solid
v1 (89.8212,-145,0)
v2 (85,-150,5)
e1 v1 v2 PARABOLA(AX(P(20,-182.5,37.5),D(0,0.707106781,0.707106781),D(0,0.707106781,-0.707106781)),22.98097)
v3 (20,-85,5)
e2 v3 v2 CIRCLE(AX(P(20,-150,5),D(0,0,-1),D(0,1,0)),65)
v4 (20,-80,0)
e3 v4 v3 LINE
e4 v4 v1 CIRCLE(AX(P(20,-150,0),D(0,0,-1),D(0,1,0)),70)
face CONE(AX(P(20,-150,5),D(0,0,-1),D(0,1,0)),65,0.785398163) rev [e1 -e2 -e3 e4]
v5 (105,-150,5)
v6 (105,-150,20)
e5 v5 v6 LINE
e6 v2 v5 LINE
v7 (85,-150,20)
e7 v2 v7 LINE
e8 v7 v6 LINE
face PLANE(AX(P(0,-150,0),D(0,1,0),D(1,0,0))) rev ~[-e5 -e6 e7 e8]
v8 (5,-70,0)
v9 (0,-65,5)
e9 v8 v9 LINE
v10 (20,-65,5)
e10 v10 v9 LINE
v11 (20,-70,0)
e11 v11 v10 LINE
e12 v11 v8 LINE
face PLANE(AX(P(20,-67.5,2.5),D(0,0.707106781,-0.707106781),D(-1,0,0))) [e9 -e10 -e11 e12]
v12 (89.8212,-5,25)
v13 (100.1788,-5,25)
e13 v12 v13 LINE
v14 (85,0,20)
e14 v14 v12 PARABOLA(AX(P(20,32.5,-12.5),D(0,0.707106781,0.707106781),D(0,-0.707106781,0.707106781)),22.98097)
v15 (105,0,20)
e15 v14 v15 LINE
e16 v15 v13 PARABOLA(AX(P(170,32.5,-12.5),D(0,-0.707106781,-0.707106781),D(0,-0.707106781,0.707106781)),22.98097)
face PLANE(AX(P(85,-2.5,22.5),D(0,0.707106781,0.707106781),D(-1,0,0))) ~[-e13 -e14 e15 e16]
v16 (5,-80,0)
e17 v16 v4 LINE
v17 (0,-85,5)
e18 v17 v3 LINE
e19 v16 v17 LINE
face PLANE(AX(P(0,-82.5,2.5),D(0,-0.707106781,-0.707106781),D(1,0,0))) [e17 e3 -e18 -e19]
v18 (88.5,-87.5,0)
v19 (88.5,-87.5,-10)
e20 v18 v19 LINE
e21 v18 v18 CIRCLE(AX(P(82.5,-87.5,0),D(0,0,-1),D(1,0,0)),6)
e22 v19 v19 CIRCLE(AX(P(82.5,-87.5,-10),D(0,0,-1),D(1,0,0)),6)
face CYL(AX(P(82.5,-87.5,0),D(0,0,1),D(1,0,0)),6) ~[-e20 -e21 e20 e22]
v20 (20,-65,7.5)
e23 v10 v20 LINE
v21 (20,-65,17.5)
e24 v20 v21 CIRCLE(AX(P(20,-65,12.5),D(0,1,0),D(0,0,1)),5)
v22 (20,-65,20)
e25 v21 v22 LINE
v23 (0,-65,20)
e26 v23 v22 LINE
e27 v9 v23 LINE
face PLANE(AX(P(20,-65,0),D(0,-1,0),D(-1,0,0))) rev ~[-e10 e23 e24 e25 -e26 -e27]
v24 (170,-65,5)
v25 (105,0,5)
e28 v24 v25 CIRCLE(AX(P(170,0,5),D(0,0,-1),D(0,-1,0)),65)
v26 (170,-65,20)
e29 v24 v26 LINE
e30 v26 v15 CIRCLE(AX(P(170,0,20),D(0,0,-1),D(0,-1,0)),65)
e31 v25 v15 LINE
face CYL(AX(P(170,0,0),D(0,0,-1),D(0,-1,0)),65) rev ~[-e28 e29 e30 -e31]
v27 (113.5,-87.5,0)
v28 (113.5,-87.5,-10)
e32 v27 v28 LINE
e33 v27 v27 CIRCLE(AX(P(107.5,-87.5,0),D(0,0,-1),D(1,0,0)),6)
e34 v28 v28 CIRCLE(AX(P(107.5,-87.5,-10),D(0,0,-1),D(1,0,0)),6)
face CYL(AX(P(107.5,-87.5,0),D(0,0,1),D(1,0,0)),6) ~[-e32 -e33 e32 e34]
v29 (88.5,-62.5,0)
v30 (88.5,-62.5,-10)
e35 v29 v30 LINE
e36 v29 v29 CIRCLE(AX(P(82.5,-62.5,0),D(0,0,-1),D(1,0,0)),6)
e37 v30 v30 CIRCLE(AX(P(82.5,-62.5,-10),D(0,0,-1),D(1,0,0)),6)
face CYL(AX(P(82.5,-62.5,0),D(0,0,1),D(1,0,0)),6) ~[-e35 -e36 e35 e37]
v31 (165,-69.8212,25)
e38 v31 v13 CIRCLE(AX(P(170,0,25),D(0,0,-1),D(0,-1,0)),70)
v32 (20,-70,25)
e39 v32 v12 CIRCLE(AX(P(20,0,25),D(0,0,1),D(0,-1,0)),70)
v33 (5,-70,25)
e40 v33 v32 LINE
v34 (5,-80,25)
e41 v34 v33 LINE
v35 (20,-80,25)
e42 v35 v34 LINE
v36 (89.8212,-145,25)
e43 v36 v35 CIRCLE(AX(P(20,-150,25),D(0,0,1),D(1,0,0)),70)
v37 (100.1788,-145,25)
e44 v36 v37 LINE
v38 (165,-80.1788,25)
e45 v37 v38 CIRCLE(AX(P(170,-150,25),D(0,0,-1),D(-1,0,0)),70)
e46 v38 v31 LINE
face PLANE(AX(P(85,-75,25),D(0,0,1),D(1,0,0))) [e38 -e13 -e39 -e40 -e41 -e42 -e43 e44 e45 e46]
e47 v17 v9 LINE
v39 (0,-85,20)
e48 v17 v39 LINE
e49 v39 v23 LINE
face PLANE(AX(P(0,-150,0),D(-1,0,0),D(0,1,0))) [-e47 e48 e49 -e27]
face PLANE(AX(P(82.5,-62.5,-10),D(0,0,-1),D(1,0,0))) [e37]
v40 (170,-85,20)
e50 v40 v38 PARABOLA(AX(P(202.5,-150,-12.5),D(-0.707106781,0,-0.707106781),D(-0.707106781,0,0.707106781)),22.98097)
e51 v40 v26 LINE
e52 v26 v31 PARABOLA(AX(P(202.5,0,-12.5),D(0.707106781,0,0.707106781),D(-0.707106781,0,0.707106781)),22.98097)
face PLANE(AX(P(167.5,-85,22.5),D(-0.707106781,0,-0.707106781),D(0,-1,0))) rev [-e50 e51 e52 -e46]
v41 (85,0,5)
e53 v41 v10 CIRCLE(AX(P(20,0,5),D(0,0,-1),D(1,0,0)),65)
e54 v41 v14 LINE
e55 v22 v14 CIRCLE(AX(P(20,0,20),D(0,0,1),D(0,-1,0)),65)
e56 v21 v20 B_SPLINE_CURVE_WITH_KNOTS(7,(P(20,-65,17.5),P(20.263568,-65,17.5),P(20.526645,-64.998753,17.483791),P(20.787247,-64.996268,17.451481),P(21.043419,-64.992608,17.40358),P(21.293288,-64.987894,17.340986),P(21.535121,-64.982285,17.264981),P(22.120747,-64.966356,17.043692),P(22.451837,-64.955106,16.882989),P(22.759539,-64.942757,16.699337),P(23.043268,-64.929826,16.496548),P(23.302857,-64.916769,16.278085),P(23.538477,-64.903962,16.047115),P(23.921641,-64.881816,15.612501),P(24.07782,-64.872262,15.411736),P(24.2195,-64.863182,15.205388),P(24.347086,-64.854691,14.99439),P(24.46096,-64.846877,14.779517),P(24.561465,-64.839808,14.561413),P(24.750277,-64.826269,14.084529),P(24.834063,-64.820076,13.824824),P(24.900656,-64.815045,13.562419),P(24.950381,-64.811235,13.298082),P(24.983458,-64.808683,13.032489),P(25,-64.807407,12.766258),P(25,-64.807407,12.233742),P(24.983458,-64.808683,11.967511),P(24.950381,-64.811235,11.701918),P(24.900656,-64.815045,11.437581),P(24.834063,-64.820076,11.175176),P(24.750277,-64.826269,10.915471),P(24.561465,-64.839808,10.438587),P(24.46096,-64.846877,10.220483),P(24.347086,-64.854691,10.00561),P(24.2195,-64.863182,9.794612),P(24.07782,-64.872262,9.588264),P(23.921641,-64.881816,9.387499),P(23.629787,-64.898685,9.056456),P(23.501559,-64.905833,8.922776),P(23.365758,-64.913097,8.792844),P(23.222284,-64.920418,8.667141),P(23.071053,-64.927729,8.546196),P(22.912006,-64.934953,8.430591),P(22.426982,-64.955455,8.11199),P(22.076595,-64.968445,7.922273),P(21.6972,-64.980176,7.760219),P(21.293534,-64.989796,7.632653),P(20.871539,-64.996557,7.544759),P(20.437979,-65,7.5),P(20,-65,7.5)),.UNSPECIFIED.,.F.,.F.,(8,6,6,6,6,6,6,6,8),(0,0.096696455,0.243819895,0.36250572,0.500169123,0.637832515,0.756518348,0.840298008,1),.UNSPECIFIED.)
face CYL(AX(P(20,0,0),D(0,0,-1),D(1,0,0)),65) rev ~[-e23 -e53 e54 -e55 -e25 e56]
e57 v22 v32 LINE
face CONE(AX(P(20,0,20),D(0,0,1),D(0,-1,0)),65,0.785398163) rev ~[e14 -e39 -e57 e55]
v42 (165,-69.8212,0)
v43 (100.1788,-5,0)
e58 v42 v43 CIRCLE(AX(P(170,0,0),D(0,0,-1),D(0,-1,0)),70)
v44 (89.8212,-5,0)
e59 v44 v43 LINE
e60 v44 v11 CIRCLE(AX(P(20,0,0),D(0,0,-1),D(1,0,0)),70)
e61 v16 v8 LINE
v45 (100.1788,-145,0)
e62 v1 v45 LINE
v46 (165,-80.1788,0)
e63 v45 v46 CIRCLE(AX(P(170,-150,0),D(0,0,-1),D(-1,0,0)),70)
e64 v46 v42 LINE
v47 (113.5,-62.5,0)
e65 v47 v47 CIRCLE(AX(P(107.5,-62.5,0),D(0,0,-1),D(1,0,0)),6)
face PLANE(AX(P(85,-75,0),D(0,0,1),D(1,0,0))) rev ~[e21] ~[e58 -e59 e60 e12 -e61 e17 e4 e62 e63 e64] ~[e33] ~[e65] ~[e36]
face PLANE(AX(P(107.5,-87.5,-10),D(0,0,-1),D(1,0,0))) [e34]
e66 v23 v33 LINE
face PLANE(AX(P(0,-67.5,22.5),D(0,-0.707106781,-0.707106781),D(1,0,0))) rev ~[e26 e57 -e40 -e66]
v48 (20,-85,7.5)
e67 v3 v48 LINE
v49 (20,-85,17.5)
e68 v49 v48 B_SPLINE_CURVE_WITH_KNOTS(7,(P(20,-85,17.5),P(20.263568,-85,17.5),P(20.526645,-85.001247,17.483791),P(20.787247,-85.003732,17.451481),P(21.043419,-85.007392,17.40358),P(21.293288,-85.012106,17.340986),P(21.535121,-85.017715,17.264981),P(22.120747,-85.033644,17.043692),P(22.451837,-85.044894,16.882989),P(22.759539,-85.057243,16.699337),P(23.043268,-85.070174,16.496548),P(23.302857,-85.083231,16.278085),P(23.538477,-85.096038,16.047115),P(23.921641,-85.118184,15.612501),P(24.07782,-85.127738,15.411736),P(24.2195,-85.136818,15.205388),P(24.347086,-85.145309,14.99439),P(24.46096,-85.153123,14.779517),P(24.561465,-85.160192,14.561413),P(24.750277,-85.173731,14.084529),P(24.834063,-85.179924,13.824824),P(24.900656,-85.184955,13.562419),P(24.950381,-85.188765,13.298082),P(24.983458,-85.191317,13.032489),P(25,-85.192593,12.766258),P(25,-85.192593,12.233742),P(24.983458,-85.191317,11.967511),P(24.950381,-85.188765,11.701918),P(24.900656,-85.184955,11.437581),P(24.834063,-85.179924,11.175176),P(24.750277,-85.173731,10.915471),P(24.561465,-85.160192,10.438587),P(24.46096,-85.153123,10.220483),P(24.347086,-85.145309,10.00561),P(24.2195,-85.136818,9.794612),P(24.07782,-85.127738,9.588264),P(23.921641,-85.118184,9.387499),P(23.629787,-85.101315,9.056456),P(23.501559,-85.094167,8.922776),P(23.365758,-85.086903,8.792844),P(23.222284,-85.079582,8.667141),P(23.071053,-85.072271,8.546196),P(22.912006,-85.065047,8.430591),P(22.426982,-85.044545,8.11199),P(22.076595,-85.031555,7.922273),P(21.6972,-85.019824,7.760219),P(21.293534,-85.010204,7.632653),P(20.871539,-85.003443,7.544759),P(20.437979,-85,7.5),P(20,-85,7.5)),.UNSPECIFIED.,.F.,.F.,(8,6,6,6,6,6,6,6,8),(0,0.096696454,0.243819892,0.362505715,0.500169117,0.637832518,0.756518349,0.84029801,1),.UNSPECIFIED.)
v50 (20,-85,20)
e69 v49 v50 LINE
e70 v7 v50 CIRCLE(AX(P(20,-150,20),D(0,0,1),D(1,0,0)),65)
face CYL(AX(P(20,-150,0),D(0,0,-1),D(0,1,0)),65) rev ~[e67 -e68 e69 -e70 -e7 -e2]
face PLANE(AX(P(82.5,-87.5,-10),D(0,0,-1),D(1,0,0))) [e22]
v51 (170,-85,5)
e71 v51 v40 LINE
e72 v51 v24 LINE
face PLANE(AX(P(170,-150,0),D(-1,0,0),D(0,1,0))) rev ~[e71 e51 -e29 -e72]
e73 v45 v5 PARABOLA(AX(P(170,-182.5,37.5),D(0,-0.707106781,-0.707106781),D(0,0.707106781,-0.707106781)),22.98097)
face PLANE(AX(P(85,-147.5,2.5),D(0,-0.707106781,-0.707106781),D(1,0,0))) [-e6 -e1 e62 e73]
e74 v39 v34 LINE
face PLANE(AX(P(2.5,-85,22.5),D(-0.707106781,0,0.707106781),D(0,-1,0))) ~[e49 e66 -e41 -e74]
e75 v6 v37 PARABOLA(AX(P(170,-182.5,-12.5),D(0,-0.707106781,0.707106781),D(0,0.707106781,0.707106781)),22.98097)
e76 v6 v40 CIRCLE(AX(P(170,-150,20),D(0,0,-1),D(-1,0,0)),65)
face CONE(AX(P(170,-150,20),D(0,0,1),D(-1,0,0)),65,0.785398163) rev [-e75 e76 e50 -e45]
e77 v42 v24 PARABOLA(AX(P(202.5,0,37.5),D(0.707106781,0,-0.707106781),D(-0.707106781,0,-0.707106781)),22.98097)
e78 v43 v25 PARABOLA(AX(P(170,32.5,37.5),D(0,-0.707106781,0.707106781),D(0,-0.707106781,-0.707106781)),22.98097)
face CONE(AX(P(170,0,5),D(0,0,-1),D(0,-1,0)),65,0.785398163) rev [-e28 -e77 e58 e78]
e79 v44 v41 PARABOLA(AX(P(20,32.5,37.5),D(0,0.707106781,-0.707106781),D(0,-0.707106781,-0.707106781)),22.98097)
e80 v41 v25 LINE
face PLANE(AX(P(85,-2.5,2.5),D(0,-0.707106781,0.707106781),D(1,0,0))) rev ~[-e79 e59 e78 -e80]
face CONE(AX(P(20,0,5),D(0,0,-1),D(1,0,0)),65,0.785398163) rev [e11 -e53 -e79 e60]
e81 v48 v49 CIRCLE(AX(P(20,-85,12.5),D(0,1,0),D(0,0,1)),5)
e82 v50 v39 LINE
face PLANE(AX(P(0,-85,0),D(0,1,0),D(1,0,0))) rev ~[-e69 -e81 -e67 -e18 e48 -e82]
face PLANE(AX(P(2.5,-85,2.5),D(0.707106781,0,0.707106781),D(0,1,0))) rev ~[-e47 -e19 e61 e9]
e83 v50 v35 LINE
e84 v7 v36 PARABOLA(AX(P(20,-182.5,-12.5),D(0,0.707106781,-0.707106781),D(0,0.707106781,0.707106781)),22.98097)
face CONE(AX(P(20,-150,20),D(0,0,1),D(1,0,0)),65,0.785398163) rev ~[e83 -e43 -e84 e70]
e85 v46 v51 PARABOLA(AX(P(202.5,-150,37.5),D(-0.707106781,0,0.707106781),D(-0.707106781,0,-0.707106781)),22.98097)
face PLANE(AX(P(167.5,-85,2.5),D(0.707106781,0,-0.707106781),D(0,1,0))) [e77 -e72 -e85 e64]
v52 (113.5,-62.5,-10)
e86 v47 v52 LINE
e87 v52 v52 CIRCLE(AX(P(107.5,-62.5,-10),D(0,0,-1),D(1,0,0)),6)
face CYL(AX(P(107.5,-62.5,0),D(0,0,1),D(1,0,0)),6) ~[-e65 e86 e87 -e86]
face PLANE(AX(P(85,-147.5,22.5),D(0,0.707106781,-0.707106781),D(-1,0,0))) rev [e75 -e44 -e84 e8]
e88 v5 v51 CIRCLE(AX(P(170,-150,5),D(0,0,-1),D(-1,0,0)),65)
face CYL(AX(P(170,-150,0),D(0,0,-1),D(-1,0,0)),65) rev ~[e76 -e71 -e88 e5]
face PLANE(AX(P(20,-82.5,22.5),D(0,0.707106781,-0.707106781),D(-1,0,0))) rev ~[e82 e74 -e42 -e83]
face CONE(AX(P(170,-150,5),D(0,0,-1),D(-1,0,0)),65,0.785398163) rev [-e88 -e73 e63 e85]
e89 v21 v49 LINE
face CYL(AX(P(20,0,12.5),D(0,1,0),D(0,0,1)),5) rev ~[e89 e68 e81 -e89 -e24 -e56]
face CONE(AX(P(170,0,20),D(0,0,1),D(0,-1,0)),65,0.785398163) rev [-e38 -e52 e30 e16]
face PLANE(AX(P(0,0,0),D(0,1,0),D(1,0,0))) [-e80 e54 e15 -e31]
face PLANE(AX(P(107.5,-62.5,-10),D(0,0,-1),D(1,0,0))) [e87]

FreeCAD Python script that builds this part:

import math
import FreeCAD as App
import Part
import Sketcher


def edges_at(feature, points):
    """Names of the edges that pass closest to the given points."""
    edges = feature.Shape.Edges
    near = lambda p: min(range(len(edges)), key=lambda i: edges[i].distToShape(Part.Vertex(*p))[0])
    return sorted({f"Edge{near(p) + 1}" for p in points})


def add_polygon(sketch, points):
    """Adds a closed chain of lines whose ends are joined by coincident constraints."""
    first, n = sketch.GeometryCount, len(points)
    for a, b in zip(points, points[1:] + points[:1]):
        sketch.addGeometry(Part.LineSegment(App.Vector(*a, 0), App.Vector(*b, 0)), False)
    for i in range(n):
        sketch.addConstraint(Sketcher.Constraint("Coincident", first + i, 2, first + (i + 1) % n, 1))

doc = App.newDocument("Part")
body = doc.addObject("PartDesign::Body", "Body")

# Sketch on XY plane
sketch1 = body.newObject("Sketcher::SketchObject", "Sketch")
sketch1.AttachmentSupport = (doc.getObject("XY_Plane"), [""])
sketch1.MapMode = "FlatFace"
add_polygon(sketch1, [(0, 0), (0, -150), (170, -150), (170, 0)])  # lines 0-3
sketch1.addConstraint(Sketcher.Constraint("Vertical", 0))
sketch1.addConstraint(Sketcher.Constraint("Horizontal", 1))
sketch1.addConstraint(Sketcher.Constraint("Vertical", 2))
sketch1.addConstraint(Sketcher.Constraint("Horizontal", 3))
sketch1.addConstraint(Sketcher.Constraint("Coincident", 3, 2, -1, 1))
sketch1.addConstraint(Sketcher.Constraint("DistanceX", 1, 1, 1, 2, 170.0))
sketch1.addConstraint(Sketcher.Constraint("DistanceY", 0, 2, 0, 1, 150.0))
pad1 = body.newObject("PartDesign::Pad", "Pad")
pad1.Profile = sketch1
pad1.Length = 25

# Sketch on XY plane
sketch2 = body.newObject("Sketcher::SketchObject", "Sketch001")
sketch2.AttachmentSupport = (doc.getObject("XY_Plane"), [""])
sketch2.MapMode = "FlatFace"
sketch2.addGeometry(Part.ArcOfCircle(Part.Circle(App.Vector(170, 0, 0), App.Vector(0, 0, 1), 65), math.radians(-90), math.radians(180)), False)
sketch2.addGeometry(Part.ArcOfCircle(Part.Circle(App.Vector(170, 0, 0), App.Vector(0, 0, 1), 65), math.radians(180), math.radians(270)), False)
sketch2.addGeometry(Part.ArcOfCircle(Part.Circle(App.Vector(20, 0, 0), App.Vector(0, 0, 1), 65), math.radians(0), math.radians(252)), False)
sketch2.addGeometry(Part.ArcOfCircle(Part.Circle(App.Vector(20, 0, 0), App.Vector(0, 0, 1), 65), math.radians(-90), math.radians(0)), False)
sketch2.addGeometry(Part.LineSegment(App.Vector(20, -65, 0), App.Vector(0, -65, 0)), False)
sketch2.addGeometry(Part.LineSegment(App.Vector(0, -65, 0), App.Vector(0, -61.8, 0)), False)
sketch2.addGeometry(Part.ArcOfCircle(Part.Circle(App.Vector(20, -150, 0), App.Vector(0, 0, 1), 65), math.radians(108), math.radians(360)), False)
sketch2.addGeometry(Part.LineSegment(App.Vector(0, -88.2, 0), App.Vector(0, -85, 0)), False)
sketch2.addGeometry(Part.LineSegment(App.Vector(0, -85, 0), App.Vector(20, -85, 0)), False)
sketch2.addGeometry(Part.ArcOfCircle(Part.Circle(App.Vector(20, -150, 0), App.Vector(0, 0, 1), 65), math.radians(0), math.radians(90)), False)
sketch2.addGeometry(Part.ArcOfCircle(Part.Circle(App.Vector(170, -150, 0), App.Vector(0, 0, 1), 65), math.radians(180), math.radians(450)), False)
sketch2.addGeometry(Part.ArcOfCircle(Part.Circle(App.Vector(170, -150, 0), App.Vector(0, 0, 1), 65), math.radians(90), math.radians(180)), False)
sketch2.addConstraint(Sketcher.Constraint("Tangent", 0, 1, 1, 2))
sketch2.addConstraint(Sketcher.Constraint("Coincident", 1, 1, 0, 2))
sketch2.addConstraint(Sketcher.Constraint("Tangent", 2, 1, 3, 2))
sketch2.addConstraint(Sketcher.Constraint("Tangent", 3, 1, 4, 1))
sketch2.addConstraint(Sketcher.Constraint("Coincident", 4, 2, 5, 1))
sketch2.addConstraint(Sketcher.Constraint("Coincident", 5, 2, 2, 2))
sketch2.addConstraint(Sketcher.Constraint("Coincident", 6, 1, 7, 1))
sketch2.addConstraint(Sketcher.Constraint("Coincident", 7, 2, 8, 1))
sketch2.addConstraint(Sketcher.Constraint("Tangent", 8, 2, 9, 2))
sketch2.addConstraint(Sketcher.Constraint("Tangent", 9, 1, 6, 2))
sketch2.addConstraint(Sketcher.Constraint("Tangent", 10, 1, 11, 2))
sketch2.addConstraint(Sketcher.Constraint("Coincident", 11, 1, 10, 2))
sketch2.addConstraint(Sketcher.Constraint("Horizontal", 4))
sketch2.addConstraint(Sketcher.Constraint("Vertical", 5))
sketch2.addConstraint(Sketcher.Constraint("Vertical", 7))
sketch2.addConstraint(Sketcher.Constraint("Horizontal", 8))
sketch2.addConstraint(Sketcher.Constraint("Equal", 1, 2))
sketch2.addConstraint(Sketcher.Constraint("Equal", 2, 3))
sketch2.addConstraint(Sketcher.Constraint("Equal", 3, 6))
sketch2.addConstraint(Sketcher.Constraint("Equal", 6, 9))
sketch2.addConstraint(Sketcher.Constraint("Equal", 9, 10))
sketch2.addConstraint(Sketcher.Constraint("PointOnObject", 0, 3, -1))
sketch2.addConstraint(Sketcher.Constraint("PointOnObject", 2, 3, -1))
sketch2.addConstraint(Sketcher.Constraint("PointOnObject", 1, 1, -1))
sketch2.addConstraint(Sketcher.Constraint("PointOnObject", 2, 1, -1))
sketch2.addConstraint(Sketcher.Constraint("PointOnObject", 4, 2, -2))
sketch2.addConstraint(Sketcher.Constraint("PointOnObject", 6, 1, -2))
sketch2.addConstraint(Sketcher.Constraint("Horizontal", 9, 3, 10, 3))
sketch2.addConstraint(Sketcher.Constraint("Horizontal", 11, 3, 9, 1))
sketch2.addConstraint(Sketcher.Constraint("Horizontal", 9, 1, 10, 1))
sketch2.addConstraint(Sketcher.Constraint("Vertical", 3, 3, 6, 3))
sketch2.addConstraint(Sketcher.Constraint("Vertical", 1, 3, 10, 3))
sketch2.addConstraint(Sketcher.Constraint("Vertical", 11, 3, 0, 1))
sketch2.addConstraint(Sketcher.Constraint("Vertical", 0, 1, 11, 1))
sketch2.addConstraint(Sketcher.Constraint("Radius", 0, 65.0))
sketch2.addConstraint(Sketcher.Constraint("DistanceX", 4, 2, 4, 1, 20.0))
sketch2.addConstraint(Sketcher.Constraint("DistanceX", -1, 1, 0, 3, 170.0))
sketch2.addConstraint(Sketcher.Constraint("DistanceY", 6, 3, -1, 1, 150.0))
pocket1 = body.newObject("PartDesign::Pocket", "Pocket")
pocket1.Profile = sketch2
pocket1.Length = 50
pocket1.Reversed = True
doc.recompute()

chamfer = body.newObject("PartDesign::Chamfer", "Chamfer")
chamfer.Base = (pocket1, edges_at(pocket1, [
    (0, -75, 0),
    (95, 0, 0),
    (170, -75, 0),
    (95, -150, 0),
    (124.038, -45.962, 0),
    (65.962, -45.962, 0),
    (124.038, -104.038, 0),
    (65.962, -104.038, 0),
    (10, -85, 0),
    (10, -65, 0),
]))
chamfer.Size = 5

# Sketch on XY plane
sketch3 = body.newObject("Sketcher::SketchObject", "Sketch002")
sketch3.AttachmentSupport = (doc.getObject("XY_Plane"), [""])
sketch3.MapMode = "FlatFace"
sketch3.addGeometry(Part.Circle(App.Vector(108, -62, 0), App.Vector(0, 0, 1), 6), False)
sketch3.addGeometry(Part.Circle(App.Vector(82, -62, 0), App.Vector(0, 0, 1), 6), False)
sketch3.addGeometry(Part.Circle(App.Vector(82, -88, 0), App.Vector(0, 0, 1), 6), False)
sketch3.addGeometry(Part.Circle(App.Vector(108, -88, 0), App.Vector(0, 0, 1), 6), False)
sketch3.addConstraint(Sketcher.Constraint("Equal", 0, 1))
sketch3.addConstraint(Sketcher.Constraint("Equal", 1, 2))
sketch3.addConstraint(Sketcher.Constraint("Equal", 2, 3))
sketch3.addConstraint(Sketcher.Constraint("Horizontal", 0, 3, 1, 3))
sketch3.addConstraint(Sketcher.Constraint("Horizontal", 2, 3, 3, 3))
sketch3.addConstraint(Sketcher.Constraint("Vertical", 1, 3, 2, 3))
sketch3.addConstraint(Sketcher.Constraint("Vertical", 0, 3, 3, 3))
sketch3.addConstraint(Sketcher.Constraint("Diameter", 0, 12.0))
sketch3.addConstraint(Sketcher.Constraint("DistanceX", 1, 3, 0, 3, 25.0))
sketch3.addConstraint(Sketcher.Constraint("DistanceY", 2, 3, 1, 3, 25.0))
sketch3.addConstraint(Sketcher.Constraint("DistanceX", -1, 1, 0, 3, 107.5))
sketch3.addConstraint(Sketcher.Constraint("DistanceY", 0, 3, -1, 1, 62.5))
pad2 = body.newObject("PartDesign::Pad", "Pad001")
pad2.Profile = sketch3
pad2.Length = 10
pad2.Reversed = True
doc.recompute()

chamfer2 = body.newObject("PartDesign::Chamfer", "Chamfer001")
chamfer2.Base = (pad2, edges_at(pad2, [
    (0, -75, 25),
    (95, -150, 25),
    (170, -75, 25),
    (95, 0, 25),
    (124.038, -104.038, 25),
    (10, -85, 25),
    (65.962, -104.038, 25),
    (10, -65, 25),
    (65.962, -45.962, 25),
    (124.038, -45.962, 25),
]))
chamfer2.Size = 5

# Sketch on XZ plane
sketch4 = body.newObject("Sketcher::SketchObject", "Sketch003")
sketch4.AttachmentSupport = (doc.getObject("XZ_Plane"), [""])
sketch4.MapMode = "FlatFace"
sketch4.addGeometry(Part.Circle(App.Vector(20, 12, 0), App.Vector(0, 0, 1), 5), False)
sketch4.addConstraint(Sketcher.Constraint("Diameter", 0, 10.0))
sketch4.addConstraint(Sketcher.Constraint("DistanceX", -1, 1, 0, 3, 20.0))
sketch4.addConstraint(Sketcher.Constraint("DistanceY", -1, 1, 0, 3, 12.5))
pocket2 = body.newObject("PartDesign::Pocket", "Pocket001")
pocket2.Profile = sketch4
pocket2.Type = "ThroughAll"
pocket2.Reversed = True

doc.recompute()
